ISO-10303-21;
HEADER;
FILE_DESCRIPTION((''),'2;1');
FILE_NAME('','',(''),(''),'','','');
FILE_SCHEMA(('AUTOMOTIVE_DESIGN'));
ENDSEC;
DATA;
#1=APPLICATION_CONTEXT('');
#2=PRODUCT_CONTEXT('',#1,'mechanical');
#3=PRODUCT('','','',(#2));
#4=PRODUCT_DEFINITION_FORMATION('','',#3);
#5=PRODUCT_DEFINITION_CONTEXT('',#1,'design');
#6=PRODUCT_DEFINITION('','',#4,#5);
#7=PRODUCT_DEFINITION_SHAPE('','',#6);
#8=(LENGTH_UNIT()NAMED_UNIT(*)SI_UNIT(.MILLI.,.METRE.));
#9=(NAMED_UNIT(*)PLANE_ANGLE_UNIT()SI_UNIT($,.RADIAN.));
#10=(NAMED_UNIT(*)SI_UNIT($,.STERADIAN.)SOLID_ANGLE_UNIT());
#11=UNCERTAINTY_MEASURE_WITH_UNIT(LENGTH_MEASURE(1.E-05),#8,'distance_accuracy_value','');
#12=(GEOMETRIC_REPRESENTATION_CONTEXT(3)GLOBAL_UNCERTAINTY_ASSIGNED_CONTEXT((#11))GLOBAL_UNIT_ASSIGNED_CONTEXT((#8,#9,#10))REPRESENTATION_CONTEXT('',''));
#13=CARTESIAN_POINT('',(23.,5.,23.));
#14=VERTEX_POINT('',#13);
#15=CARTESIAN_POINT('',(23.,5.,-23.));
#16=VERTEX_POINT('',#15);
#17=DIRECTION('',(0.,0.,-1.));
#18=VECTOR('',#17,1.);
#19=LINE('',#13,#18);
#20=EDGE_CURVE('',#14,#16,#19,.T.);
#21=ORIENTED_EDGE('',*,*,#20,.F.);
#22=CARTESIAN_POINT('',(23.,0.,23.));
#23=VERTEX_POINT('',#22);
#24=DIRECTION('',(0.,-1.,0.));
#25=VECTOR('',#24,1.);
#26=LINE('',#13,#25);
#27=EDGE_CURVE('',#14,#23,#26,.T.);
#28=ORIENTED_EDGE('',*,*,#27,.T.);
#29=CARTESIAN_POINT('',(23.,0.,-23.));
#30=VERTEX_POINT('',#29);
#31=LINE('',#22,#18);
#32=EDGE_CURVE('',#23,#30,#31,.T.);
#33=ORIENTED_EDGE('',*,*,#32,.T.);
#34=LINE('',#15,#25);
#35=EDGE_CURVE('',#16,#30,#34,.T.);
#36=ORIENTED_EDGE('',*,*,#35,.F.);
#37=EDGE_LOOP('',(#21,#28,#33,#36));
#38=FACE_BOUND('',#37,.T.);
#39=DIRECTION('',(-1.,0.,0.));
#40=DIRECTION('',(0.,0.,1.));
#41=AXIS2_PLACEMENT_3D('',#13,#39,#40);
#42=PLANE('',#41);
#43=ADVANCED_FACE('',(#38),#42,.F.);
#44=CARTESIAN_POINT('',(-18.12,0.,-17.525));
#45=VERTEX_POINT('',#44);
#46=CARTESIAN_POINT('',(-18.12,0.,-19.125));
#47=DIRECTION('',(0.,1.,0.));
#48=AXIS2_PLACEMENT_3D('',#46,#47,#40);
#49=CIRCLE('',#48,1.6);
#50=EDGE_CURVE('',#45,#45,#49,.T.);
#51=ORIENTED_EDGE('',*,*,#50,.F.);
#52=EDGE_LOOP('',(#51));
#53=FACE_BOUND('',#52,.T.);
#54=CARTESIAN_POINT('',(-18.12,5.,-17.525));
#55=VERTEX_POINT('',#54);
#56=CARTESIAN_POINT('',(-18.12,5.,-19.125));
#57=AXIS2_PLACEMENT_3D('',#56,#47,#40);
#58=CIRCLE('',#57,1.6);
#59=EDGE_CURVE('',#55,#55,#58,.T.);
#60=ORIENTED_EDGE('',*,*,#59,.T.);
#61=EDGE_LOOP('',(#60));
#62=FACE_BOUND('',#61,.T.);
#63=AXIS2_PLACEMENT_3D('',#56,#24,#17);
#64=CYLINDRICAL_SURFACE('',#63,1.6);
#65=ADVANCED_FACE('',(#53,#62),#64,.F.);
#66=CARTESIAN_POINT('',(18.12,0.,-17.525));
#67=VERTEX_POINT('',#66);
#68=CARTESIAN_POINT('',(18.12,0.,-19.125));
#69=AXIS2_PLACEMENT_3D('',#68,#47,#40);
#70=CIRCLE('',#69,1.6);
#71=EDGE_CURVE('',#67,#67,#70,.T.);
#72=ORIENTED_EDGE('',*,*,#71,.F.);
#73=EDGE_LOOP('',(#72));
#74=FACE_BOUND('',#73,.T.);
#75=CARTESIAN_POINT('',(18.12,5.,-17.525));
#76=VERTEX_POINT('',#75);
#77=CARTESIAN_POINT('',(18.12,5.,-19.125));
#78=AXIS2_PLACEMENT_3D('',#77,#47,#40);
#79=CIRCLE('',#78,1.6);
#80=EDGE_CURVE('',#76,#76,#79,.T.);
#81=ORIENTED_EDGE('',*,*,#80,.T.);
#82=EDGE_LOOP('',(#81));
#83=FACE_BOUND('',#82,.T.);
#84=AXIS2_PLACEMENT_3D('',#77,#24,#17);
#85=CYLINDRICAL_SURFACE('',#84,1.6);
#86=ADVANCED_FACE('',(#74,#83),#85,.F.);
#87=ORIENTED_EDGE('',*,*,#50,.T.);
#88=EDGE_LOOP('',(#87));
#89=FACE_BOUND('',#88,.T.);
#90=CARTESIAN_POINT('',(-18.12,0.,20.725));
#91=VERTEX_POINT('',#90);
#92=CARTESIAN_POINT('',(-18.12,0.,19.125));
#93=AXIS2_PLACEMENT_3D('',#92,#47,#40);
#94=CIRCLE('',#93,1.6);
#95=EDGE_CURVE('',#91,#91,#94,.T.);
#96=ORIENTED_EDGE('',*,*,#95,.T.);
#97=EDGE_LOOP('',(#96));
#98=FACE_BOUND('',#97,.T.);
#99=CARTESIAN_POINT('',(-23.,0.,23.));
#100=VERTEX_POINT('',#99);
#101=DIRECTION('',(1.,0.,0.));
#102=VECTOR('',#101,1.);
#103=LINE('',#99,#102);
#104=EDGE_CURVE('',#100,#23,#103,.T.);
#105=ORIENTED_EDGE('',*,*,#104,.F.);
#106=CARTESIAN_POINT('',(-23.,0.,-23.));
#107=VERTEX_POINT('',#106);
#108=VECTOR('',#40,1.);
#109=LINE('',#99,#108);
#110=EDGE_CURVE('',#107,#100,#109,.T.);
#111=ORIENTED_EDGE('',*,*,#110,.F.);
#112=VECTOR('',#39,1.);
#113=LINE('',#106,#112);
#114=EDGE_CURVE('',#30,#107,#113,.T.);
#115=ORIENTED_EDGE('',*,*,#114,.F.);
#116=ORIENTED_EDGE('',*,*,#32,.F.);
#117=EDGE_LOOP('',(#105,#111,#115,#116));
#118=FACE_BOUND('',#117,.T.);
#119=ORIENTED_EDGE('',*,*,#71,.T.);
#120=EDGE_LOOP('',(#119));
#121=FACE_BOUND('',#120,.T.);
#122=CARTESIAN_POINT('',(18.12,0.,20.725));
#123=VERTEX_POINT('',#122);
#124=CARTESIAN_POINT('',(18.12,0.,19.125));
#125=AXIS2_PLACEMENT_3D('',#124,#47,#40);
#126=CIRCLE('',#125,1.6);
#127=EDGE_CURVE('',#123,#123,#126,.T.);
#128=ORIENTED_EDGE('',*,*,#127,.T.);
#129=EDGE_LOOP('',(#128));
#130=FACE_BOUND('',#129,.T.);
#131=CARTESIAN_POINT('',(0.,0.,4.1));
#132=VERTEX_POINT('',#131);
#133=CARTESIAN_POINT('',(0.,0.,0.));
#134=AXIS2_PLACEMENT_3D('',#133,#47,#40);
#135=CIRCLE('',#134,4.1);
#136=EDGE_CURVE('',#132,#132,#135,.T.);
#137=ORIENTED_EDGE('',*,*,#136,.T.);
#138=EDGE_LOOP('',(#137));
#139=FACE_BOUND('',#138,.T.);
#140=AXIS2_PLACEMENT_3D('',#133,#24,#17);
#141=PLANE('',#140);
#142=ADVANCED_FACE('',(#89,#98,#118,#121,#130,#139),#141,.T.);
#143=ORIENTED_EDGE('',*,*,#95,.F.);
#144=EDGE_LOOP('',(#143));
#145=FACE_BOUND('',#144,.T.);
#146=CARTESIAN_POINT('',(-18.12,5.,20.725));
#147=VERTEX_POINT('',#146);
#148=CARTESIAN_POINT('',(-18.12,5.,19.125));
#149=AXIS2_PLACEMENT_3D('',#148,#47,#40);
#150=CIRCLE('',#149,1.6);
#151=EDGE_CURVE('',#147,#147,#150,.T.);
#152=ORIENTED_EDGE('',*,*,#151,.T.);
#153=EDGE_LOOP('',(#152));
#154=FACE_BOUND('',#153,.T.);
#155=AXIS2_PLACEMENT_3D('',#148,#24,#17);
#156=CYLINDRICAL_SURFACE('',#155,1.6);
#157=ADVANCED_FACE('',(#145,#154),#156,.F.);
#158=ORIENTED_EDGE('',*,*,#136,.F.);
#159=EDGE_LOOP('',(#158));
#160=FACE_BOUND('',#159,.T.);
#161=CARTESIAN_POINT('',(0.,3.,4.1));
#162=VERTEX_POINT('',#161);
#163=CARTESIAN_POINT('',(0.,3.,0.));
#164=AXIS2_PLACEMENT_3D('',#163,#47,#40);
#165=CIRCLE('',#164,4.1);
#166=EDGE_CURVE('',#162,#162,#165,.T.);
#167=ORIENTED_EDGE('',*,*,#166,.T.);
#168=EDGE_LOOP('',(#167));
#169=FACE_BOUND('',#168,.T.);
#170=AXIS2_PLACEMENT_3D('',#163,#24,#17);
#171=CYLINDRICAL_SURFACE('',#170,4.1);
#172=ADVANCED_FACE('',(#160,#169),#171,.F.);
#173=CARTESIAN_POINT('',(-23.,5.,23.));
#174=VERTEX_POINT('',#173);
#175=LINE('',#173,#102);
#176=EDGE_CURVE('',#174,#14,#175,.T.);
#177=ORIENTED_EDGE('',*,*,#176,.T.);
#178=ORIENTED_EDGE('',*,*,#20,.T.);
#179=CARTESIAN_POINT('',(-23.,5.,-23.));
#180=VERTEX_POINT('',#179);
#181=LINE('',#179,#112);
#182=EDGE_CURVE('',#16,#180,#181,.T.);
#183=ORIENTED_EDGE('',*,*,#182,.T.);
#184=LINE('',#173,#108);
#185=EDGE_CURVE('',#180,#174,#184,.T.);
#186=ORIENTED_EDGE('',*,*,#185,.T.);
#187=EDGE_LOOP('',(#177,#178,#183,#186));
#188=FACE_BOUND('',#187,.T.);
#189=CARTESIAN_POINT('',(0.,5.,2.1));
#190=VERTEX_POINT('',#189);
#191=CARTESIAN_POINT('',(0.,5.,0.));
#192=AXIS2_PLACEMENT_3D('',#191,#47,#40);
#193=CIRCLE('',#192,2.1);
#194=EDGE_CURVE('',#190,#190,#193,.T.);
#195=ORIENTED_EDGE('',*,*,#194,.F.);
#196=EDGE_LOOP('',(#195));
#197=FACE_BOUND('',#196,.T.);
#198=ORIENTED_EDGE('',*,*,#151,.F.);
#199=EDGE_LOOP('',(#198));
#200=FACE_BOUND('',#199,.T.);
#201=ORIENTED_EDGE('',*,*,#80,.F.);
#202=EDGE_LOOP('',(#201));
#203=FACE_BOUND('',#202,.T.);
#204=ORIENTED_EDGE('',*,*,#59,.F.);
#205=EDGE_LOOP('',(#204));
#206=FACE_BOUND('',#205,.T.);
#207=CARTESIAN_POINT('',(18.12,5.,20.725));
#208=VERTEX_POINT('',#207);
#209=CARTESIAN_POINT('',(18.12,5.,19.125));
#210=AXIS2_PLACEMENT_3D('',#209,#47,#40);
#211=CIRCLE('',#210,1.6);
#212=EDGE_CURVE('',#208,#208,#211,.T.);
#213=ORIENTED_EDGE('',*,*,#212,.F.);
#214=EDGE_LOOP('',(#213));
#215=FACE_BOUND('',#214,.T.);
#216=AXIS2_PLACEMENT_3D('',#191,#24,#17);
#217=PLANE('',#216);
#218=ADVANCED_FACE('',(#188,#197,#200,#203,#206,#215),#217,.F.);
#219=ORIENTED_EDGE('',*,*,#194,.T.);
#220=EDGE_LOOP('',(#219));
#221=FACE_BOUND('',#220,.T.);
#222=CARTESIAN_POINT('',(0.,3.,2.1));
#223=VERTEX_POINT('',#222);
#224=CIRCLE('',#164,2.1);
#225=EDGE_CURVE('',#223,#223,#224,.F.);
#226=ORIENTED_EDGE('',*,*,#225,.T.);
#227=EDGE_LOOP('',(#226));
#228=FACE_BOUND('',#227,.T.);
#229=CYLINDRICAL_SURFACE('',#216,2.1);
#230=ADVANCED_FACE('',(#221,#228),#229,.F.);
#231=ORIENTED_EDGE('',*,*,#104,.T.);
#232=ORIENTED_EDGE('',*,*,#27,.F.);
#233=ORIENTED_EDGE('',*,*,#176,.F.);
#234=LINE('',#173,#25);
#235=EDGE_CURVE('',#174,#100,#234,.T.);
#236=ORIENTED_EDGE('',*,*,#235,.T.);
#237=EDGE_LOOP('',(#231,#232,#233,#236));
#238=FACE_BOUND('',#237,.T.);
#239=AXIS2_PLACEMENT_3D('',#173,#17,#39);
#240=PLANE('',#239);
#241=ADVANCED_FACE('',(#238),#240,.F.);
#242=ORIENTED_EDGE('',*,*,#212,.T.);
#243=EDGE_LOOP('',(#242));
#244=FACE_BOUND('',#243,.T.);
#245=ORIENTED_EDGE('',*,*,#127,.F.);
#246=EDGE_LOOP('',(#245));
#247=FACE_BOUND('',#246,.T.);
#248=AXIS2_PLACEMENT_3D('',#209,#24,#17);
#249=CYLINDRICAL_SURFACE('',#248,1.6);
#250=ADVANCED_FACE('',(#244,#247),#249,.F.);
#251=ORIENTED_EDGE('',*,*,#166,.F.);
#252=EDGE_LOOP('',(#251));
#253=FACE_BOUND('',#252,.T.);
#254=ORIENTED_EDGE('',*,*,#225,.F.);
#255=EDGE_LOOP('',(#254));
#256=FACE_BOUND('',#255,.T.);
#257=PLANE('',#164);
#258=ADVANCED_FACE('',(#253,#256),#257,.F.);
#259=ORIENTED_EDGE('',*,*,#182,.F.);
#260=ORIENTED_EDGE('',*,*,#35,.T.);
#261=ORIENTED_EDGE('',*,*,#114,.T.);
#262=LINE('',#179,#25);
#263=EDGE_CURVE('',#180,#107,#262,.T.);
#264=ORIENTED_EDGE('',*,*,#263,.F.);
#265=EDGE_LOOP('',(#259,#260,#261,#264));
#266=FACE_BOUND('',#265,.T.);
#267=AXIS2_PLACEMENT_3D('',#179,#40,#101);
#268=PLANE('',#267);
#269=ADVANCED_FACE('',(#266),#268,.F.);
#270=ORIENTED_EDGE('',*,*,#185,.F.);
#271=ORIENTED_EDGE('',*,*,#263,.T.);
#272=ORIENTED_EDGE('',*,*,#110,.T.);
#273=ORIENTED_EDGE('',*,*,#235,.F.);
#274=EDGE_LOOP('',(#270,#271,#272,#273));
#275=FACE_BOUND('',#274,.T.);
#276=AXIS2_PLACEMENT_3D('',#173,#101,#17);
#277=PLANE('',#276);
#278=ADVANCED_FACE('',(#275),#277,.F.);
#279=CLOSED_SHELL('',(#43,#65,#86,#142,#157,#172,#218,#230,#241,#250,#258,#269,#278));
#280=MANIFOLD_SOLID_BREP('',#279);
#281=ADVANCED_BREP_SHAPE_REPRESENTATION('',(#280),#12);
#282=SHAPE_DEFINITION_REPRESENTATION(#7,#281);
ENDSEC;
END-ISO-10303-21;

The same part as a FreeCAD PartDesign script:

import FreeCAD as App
import Part
import Sketcher
Q = App.Units.Quantity

doc = App.newDocument("Part")
body = doc.addObject("PartDesign::Body", "Body")

sketch1 = body.newObject("Sketcher::SketchObject", "Sketch")
sketch1.AttachmentSupport = (doc.getObject("XZ_Plane"), [""])
sketch1.MapMode = "FlatFace"
sketch1.addGeometry(Part.LineSegment(App.Vector(-23, -23, 0), App.Vector(-23, 23, 0)), False)
sketch1.addGeometry(Part.LineSegment(App.Vector(-23, 23, 0), App.Vector(23, 23, 0)), False)
sketch1.addGeometry(Part.LineSegment(App.Vector(23, 23, 0), App.Vector(23, -23, 0)), False)
sketch1.addGeometry(Part.LineSegment(App.Vector(23, -23, 0), App.Vector(-23, -23, 0)), False)
sketch1.addConstraint(Sketcher.Constraint("Coincident", 0, 2, 1, 1))
sketch1.addConstraint(Sketcher.Constraint("Coincident", 1, 2, 2, 1))
sketch1.addConstraint(Sketcher.Constraint("Coincident", 2, 2, 3, 1))
sketch1.addConstraint(Sketcher.Constraint("Coincident", 3, 2, 0, 1))
sketch1.addConstraint(Sketcher.Constraint("Vertical", 0))
sketch1.addConstraint(Sketcher.Constraint("Horizontal", 1))
sketch1.addConstraint(Sketcher.Constraint("Vertical", 2))
sketch1.addConstraint(Sketcher.Constraint("Horizontal", 3))
sketch1.addConstraint(Sketcher.Constraint("Symmetric", 0, 2, 2, 2, -1, 1))
sketch1.addConstraint(Sketcher.Constraint("Equal", 3, 0))
sketch1.addConstraint(Sketcher.Constraint("DistanceX", 1, 1, 1, 2, Q("46 mm")))
pad1 = body.newObject("PartDesign::Pad", "Pad")
pad1.Profile = sketch1
pad1.Length = 5
pad1.Reversed = True

sketch2 = body.newObject("Sketcher::SketchObject", "Sketch001")
sketch2.AttachmentSupport = (doc.getObject("XZ_Plane"), [""])
sketch2.MapMode = "FlatFace"
sketch2.addGeometry(Part.Circle(App.Vector(0, 0, 0), App.Vector(0, 0, 1), 4.1), False)
sketch2.addConstraint(Sketcher.Constraint("Coincident", 0, 3, -1, 1))
sketch2.addConstraint(Sketcher.Constraint("Diameter", 0, Q("8.2 mm")))
pocket1 = body.newObject("PartDesign::Pocket", "Pocket")
pocket1.Profile = sketch2
pocket1.Length = 3

sketch3 = body.newObject("Sketcher::SketchObject", "Sketch002")
sketch3.AttachmentSupport = (doc.getObject("XZ_Plane"), [""])
sketch3.MapMode = "FlatFace"
sketch3.addGeometry(Part.Circle(App.Vector(0, 0, 0), App.Vector(0, 0, 1), 2.1), False)
sketch3.addConstraint(Sketcher.Constraint("Coincident", 0, 3, -1, 1))
sketch3.addConstraint(Sketcher.Constraint("Diameter", 0, Q("4.2 mm")))
pocket2 = body.newObject("PartDesign::Pocket", "Pocket001")
pocket2.Profile = sketch3
pocket2.Type = "ThroughAll"

sketch4 = body.newObject("Sketcher::SketchObject", "Sketch003")
sketch4.AttachmentSupport = (doc.getObject("XZ_Plane"), [""])
sketch4.MapMode = "FlatFace"
sketch4.addGeometry(Part.Circle(App.Vector(18.12, -19.125, 0), App.Vector(0, 0, 1), 1.6), False)
sketch4.addGeometry(Part.Circle(App.Vector(-18.12, -19.125, 0), App.Vector(0, 0, 1), 1.6), False)
sketch4.addGeometry(Part.Circle(App.Vector(-18.12, 19.125, 0), App.Vector(0, 0, 1), 1.6), False)
sketch4.addGeometry(Part.Circle(App.Vector(18.12, 19.125, 0), App.Vector(0, 0, 1), 1.6), False)
sketch4.addConstraint(Sketcher.Constraint("Equal", 0, 1))
sketch4.addConstraint(Sketcher.Constraint("Equal", 1, 2))
sketch4.addConstraint(Sketcher.Constraint("Equal", 2, 3))
sketch4.addConstraint(Sketcher.Constraint("Symmetric", 0, 3, 2, 3, -1, 1))
sketch4.addConstraint(Sketcher.Constraint("Symmetric", 1, 3, 3, 3, -1, 1))
sketch4.addConstraint(Sketcher.Constraint("Symmetric", 0, 3, 1, 3, -2))
sketch4.addConstraint(Sketcher.Constraint("Diameter", 0, Q("3.2 mm")))
sketch4.addConstraint(Sketcher.Constraint("DistanceX", -1, 1, 0, 3, Q("18.12 mm")))
sketch4.addConstraint(Sketcher.Constraint("DistanceY", 1, 3, 2, 3, Q("38.25 mm")))
pocket3 = body.newObject("PartDesign::Pocket", "Pocket002")
pocket3.Profile = sketch4
pocket3.Length = 5

doc.recompute()
